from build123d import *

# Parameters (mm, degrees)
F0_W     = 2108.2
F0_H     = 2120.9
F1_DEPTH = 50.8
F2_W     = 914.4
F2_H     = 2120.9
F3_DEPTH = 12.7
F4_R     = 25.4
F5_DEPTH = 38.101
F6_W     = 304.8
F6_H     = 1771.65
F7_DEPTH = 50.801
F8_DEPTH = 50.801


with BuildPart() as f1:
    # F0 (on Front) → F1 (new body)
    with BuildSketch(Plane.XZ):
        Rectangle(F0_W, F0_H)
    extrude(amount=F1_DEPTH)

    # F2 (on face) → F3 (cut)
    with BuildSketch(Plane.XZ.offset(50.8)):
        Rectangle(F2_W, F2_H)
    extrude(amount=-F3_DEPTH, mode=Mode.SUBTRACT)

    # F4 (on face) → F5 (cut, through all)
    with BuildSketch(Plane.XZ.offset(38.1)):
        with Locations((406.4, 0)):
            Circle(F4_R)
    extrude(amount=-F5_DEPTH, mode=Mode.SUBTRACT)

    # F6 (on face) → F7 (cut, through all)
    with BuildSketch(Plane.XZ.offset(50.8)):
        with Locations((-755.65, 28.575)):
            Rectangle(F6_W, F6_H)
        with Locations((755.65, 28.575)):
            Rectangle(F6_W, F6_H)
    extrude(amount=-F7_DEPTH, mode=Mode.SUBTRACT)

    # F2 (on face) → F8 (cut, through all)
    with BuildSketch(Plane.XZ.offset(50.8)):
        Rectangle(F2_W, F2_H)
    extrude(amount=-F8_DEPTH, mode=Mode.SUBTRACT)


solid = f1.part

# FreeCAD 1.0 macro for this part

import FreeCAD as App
import Part
import Sketcher

V = App.Vector
Q = App.Units.Quantity

doc = App.newDocument("Part")
body = doc.addObject("PartDesign::Body", "Body")
body.AllowCompound = True

# Sketch on XZ plane
sketch1 = body.newObject("Sketcher::SketchObject", "Sketch")
sketch1.AttachmentSupport = (doc.getObject("XZ_Plane"), [""])
sketch1.MapMode = "FlatFace"
sketch1.addGeometry(Part.LineSegment(V(-1054.1, 1060.45, 0), V(-1054.1, -1060.45, 0)), False)
sketch1.addGeometry(Part.LineSegment(V(-1054.1, -1060.45, 0), V(1054.1, -1060.45, 0)), False)
sketch1.addGeometry(Part.LineSegment(V(1054.1, -1060.45, 0), V(1054.1, 1060.45, 0)), False)
sketch1.addGeometry(Part.LineSegment(V(1054.1, 1060.45, 0), V(-1054.1, 1060.45, 0)), False)
sketch1.addConstraint(Sketcher.Constraint("Coincident", 0, 2, 1, 1))
sketch1.addConstraint(Sketcher.Constraint("Coincident", 1, 2, 2, 1))
sketch1.addConstraint(Sketcher.Constraint("Coincident", 2, 2, 3, 1))
sketch1.addConstraint(Sketcher.Constraint("Coincident", 3, 2, 0, 1))
sketch1.addConstraint(Sketcher.Constraint("Vertical", 0))
sketch1.addConstraint(Sketcher.Constraint("Horizontal", 1))
sketch1.addConstraint(Sketcher.Constraint("Vertical", 2))
sketch1.addConstraint(Sketcher.Constraint("Horizontal", 3))
sketch1.addConstraint(Sketcher.Constraint("Symmetric", 0, 2, 2, 2, -1, 1))
sketch1.addConstraint(Sketcher.Constraint("DistanceX", 1, 1, 1, 2, Q("83 in")))
sketch1.addConstraint(Sketcher.Constraint("DistanceY", 0, 2, 0, 1, Q("83.5 in")))
pad1 = body.newObject("PartDesign::Pad", "Pad")
pad1.Profile = sketch1
pad1.Length = Q("2 in")

# Sketch on XZ plane
sketch2 = body.newObject("Sketcher::SketchObject", "Sketch001")
sketch2.AttachmentSupport = (doc.getObject("XZ_Plane"), [""])
sketch2.MapMode = "FlatFace"
sketch2.AttachmentOffset = App.Placement(V(0, 0, 2 * 25.4), App.Rotation())
sketch2.addGeometry(Part.LineSegment(V(-457.2, 1060.45, 0), V(-457.2, -1060.45, 0)), False)
sketch2.addGeometry(Part.LineSegment(V(-457.2, -1060.45, 0), V(457.2, -1060.45, 0)), False)
sketch2.addGeometry(Part.LineSegment(V(457.2, -1060.45, 0), V(457.2, 1060.45, 0)), False)
sketch2.addGeometry(Part.LineSegment(V(457.2, 1060.45, 0), V(-457.2, 1060.45, 0)), False)
sketch2.addConstraint(Sketcher.Constraint("Coincident", 0, 2, 1, 1))
sketch2.addConstraint(Sketcher.Constraint("Coincident", 1, 2, 2, 1))
sketch2.addConstraint(Sketcher.Constraint("Coincident", 2, 2, 3, 1))
sketch2.addConstraint(Sketcher.Constraint("Coincident", 3, 2, 0, 1))
sketch2.addConstraint(Sketcher.Constraint("Vertical", 0))
sketch2.addConstraint(Sketcher.Constraint("Horizontal", 1))
sketch2.addConstraint(Sketcher.Constraint("Vertical", 2))
sketch2.addConstraint(Sketcher.Constraint("Horizontal", 3))
sketch2.addConstraint(Sketcher.Constraint("Symmetric", 0, 2, 2, 2, -1, 1))
sketch2.addConstraint(Sketcher.Constraint("DistanceX", 1, 1, 1, 2, Q("36 in")))
sketch2.addConstraint(Sketcher.Constraint("DistanceY", 0, 2, 0, 1, Q("83.5 in")))
pocket1 = body.newObject("PartDesign::Pocket", "Pocket")
pocket1.Profile = sketch2
pocket1.Length = Q("0.5 in")

# Sketch on XZ plane
sketch3 = body.newObject("Sketcher::SketchObject", "Sketch002")
sketch3.AttachmentSupport = (doc.getObject("XZ_Plane"), [""])
sketch3.MapMode = "FlatFace"
sketch3.AttachmentOffset = App.Placement(V(0, 0, 1.5 * 25.4), App.Rotation())
sketch3.addGeometry(Part.Circle(V(406.4, 0, 0), V(0, 0, 1), 25.4), False)
sketch3.addConstraint(Sketcher.Constraint("PointOnObject", 0, 3, -1))
sketch3.addConstraint(Sketcher.Constraint("Diameter", 0, Q("2 in")))
sketch3.addConstraint(Sketcher.Constraint("DistanceX", -1, 1, 0, 3, Q("16 in")))
pocket2 = body.newObject("PartDesign::Pocket", "Pocket001")
pocket2.Profile = sketch3
pocket2.Type = "ThroughAll"

# Sketch on XZ plane
sketch4 = body.newObject("Sketcher::SketchObject", "Sketch003")
sketch4.AttachmentSupport = (doc.getObject("XZ_Plane"), [""])
sketch4.MapMode = "FlatFace"
sketch4.AttachmentOffset = App.Placement(V(0, 0, 2 * 25.4), App.Rotation())
sketch4.addGeometry(Part.LineSegment(V(-908.05, 914.4, 0), V(-908.05, -857.25, 0)), False)
sketch4.addGeometry(Part.LineSegment(V(-908.05, -857.25, 0), V(-603.25, -857.25, 0)), False)
sketch4.addGeometry(Part.LineSegment(V(-603.25, -857.25, 0), V(-603.25, 914.4, 0)), False)
sketch4.addGeometry(Part.LineSegment(V(-603.25, 914.4, 0), V(-908.05, 914.4, 0)), False)
sketch4.addGeometry(Part.LineSegment(V(603.25, 914.4, 0), V(603.25, -857.25, 0)), False)
sketch4.addGeometry(Part.LineSegment(V(603.25, -857.25, 0), V(908.05, -857.25, 0)), False)
sketch4.addGeometry(Part.LineSegment(V(908.05, -857.25, 0), V(908.05, 914.4, 0)), False)
sketch4.addGeometry(Part.LineSegment(V(908.05, 914.4, 0), V(603.25, 914.4, 0)), False)
sketch4.addConstraint(Sketcher.Constraint("Coincident", 0, 2, 1, 1))
sketch4.addConstraint(Sketcher.Constraint("Coincident", 1, 2, 2, 1))
sketch4.addConstraint(Sketcher.Constraint("Coincident", 2, 2, 3, 1))
sketch4.addConstraint(Sketcher.Constraint("Coincident", 3, 2, 0, 1))
sketch4.addConstraint(Sketcher.Constraint("Coincident", 4, 2, 5, 1))
sketch4.addConstraint(Sketcher.Constraint("Coincident", 5, 2, 6, 1))
sketch4.addConstraint(Sketcher.Constraint("Coincident", 6, 2, 7, 1))
sketch4.addConstraint(Sketcher.Constraint("Coincident", 7, 2, 4, 1))
sketch4.addConstraint(Sketcher.Constraint("Vertical", 0))
sketch4.addConstraint(Sketcher.Constraint("Horizontal", 1))
sketch4.addConstraint(Sketcher.Constraint("Vertical", 2))
sketch4.addConstraint(Sketcher.Constraint("Horizontal", 3))
sketch4.addConstraint(Sketcher.Constraint("Vertical", 4))
sketch4.addConstraint(Sketcher.Constraint("Horizontal", 5))
sketch4.addConstraint(Sketcher.Constraint("Vertical", 6))
sketch4.addConstraint(Sketcher.Constraint("Horizontal", 7))
sketch4.addConstraint(Sketcher.Constraint("Symmetric", 1, 2, 4, 2, -2))
sketch4.addConstraint(Sketcher.Constraint("Symmetric", 3, 2, 6, 2, -2))
sketch4.addConstraint(Sketcher.Constraint("DistanceX", 1, 1, 1, 2, Q("12 in")))
sketch4.addConstraint(Sketcher.Constraint("DistanceY", -1, 1, 2, 2, Q("36 in")))
sketch4.addConstraint(Sketcher.Constraint("DistanceY", 0, 2, 0, 1, Q("69.75 in")))
sketch4.addConstraint(Sketcher.Constraint("DistanceX", 1, 2, 4, 2, Q("47.5 in")))
pocket3 = body.newObject("PartDesign::Pocket", "Pocket002")
pocket3.Profile = sketch4
pocket3.Type = "ThroughAll"

# Sketch on XZ plane
sketch5 = body.newObject("Sketcher::SketchObject", "Sketch004")
sketch5.AttachmentSupport = (doc.getObject("XZ_Plane"), [""])
sketch5.MapMode = "FlatFace"
sketch5.AttachmentOffset = App.Placement(V(0, 0, 2 * 25.4), App.Rotation())
sketch5.addGeometry(Part.LineSegment(V(-457.2, 1060.45, 0), V(-457.2, -1060.45, 0)), False)
sketch5.addGeometry(Part.LineSegment(V(-457.2, -1060.45, 0), V(457.2, -1060.45, 0)), False)
sketch5.addGeometry(Part.LineSegment(V(457.2, -1060.45, 0), V(457.2, 1060.45, 0)), False)
sketch5.addGeometry(Part.LineSegment(V(457.2, 1060.45, 0), V(-457.2, 1060.45, 0)), False)
sketch5.addConstraint(Sketcher.Constraint("Coincident", 0, 2, 1, 1))
sketch5.addConstraint(Sketcher.Constraint("Coincident", 1, 2, 2, 1))
sketch5.addConstraint(Sketcher.Constraint("Coincident", 2, 2, 3, 1))
sketch5.addConstraint(Sketcher.Constraint("Coincident", 3, 2, 0, 1))
sketch5.addConstraint(Sketcher.Constraint("Vertical", 0))
sketch5.addConstraint(Sketcher.Constraint("Horizontal", 1))
sketch5.addConstraint(Sketcher.Constraint("Vertical", 2))
sketch5.addConstraint(Sketcher.Constraint("Horizontal", 3))
sketch5.addConstraint(Sketcher.Constraint("Symmetric", 0, 2, 2, 2, -1, 1))
sketch5.addConstraint(Sketcher.Constraint("DistanceX", 1, 1, 1, 2, Q("36 in")))
sketch5.addConstraint(Sketcher.Constraint("DistanceY", 0, 2, 0, 1, Q("83.5 in")))
pocket4 = body.newObject("PartDesign::Pocket", "Pocket003")
pocket4.Profile = sketch5
pocket4.Type = "ThroughAll"

doc.recompute()
